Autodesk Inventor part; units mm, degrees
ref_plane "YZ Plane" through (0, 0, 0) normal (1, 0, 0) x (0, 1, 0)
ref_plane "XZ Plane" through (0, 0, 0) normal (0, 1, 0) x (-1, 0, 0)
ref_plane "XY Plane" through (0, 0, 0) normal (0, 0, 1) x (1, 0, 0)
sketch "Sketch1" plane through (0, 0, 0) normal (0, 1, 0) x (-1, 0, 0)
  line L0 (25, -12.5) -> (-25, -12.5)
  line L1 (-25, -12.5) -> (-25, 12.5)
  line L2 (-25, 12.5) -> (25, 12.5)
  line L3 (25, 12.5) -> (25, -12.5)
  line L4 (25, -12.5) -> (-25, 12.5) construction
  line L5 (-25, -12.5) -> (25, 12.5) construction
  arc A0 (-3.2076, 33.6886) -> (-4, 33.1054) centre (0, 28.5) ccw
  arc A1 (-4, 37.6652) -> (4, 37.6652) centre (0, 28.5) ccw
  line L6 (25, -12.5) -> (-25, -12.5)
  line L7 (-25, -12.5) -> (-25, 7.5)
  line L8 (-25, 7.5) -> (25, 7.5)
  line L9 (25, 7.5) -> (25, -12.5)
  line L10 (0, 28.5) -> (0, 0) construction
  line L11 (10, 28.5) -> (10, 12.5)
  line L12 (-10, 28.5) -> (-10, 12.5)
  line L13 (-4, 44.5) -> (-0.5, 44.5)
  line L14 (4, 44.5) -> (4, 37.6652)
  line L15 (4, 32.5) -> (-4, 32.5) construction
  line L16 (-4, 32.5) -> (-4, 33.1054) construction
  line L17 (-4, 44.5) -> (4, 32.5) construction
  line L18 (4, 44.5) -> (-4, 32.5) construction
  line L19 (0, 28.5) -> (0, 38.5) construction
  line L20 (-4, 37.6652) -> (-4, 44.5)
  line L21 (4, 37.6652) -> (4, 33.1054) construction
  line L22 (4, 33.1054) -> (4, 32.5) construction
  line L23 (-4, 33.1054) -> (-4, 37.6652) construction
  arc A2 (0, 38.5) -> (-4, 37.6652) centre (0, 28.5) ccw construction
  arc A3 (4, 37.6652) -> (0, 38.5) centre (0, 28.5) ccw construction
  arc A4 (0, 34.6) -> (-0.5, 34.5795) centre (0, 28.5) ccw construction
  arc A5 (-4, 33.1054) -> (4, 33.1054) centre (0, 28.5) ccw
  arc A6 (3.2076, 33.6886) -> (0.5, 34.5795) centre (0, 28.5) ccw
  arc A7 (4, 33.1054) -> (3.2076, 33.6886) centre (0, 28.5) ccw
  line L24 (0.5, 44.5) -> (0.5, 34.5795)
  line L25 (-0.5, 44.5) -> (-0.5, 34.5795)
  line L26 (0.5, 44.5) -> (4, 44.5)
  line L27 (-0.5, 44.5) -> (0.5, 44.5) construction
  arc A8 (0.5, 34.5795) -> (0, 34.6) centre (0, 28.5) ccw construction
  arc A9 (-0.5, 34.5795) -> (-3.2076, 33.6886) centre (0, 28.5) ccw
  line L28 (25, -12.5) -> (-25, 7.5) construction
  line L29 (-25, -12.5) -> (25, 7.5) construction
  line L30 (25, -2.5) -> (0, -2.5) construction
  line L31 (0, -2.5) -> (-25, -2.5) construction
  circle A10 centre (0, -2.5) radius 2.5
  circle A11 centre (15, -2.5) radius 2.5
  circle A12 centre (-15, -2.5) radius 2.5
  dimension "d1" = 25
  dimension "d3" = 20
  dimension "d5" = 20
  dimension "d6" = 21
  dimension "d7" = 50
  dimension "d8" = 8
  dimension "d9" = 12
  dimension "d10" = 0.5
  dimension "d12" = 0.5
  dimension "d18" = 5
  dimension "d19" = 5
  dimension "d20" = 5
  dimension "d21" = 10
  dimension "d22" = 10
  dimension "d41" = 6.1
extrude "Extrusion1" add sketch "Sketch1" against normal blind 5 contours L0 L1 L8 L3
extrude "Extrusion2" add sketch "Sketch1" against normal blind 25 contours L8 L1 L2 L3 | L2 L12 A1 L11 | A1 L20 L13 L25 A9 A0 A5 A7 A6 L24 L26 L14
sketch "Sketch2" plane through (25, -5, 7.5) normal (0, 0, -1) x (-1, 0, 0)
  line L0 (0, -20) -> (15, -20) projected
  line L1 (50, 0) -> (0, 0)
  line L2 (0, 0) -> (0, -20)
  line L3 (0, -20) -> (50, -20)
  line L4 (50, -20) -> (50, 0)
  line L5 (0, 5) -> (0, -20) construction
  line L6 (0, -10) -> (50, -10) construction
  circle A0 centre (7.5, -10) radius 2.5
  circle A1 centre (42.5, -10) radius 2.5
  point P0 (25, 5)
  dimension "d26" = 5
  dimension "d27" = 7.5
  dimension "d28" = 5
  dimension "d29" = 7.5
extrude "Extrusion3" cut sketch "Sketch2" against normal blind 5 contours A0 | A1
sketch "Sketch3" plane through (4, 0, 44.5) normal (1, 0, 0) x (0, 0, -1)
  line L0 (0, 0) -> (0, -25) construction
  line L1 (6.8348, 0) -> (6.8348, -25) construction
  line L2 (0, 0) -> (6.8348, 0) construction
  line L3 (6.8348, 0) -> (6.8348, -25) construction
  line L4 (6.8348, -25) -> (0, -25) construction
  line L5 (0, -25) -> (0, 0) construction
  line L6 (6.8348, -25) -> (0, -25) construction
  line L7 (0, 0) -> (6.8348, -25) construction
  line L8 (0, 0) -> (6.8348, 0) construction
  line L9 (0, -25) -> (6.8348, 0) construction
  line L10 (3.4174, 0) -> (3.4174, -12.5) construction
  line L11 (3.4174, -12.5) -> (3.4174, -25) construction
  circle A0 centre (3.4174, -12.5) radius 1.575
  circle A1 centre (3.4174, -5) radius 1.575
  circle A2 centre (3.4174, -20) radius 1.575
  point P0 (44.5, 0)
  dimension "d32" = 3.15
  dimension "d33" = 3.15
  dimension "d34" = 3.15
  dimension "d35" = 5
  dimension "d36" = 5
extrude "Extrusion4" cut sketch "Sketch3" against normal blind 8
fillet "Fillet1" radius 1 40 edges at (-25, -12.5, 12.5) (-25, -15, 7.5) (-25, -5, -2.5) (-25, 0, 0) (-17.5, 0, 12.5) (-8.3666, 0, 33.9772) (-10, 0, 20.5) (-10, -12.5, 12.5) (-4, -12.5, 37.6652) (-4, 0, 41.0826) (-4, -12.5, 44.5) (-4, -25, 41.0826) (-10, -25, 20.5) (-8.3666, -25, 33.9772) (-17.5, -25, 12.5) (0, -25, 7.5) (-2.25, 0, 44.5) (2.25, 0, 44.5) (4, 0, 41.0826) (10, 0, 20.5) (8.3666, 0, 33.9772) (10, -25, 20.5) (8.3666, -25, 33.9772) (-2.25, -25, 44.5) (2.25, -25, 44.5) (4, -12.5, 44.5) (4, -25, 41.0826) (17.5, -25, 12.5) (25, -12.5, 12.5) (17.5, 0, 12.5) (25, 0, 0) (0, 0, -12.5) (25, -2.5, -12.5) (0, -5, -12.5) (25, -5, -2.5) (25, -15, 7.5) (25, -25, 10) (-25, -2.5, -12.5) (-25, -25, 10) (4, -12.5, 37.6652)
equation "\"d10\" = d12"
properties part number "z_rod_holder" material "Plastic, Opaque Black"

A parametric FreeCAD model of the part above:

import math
import FreeCAD as App
import Part
import Sketcher

V = App.Vector
Q = App.Units.Quantity


def edges_at(feature, points):
    """Names of the edges that pass closest to the given points."""
    edges = feature.Shape.Edges
    near = lambda p: min(range(len(edges)), key=lambda i: edges[i].distToShape(Part.Vertex(*p))[0])
    return sorted({f"Edge{near(p) + 1}" for p in points})

doc = App.newDocument("Part")
body = doc.addObject("PartDesign::Body", "Body")

# Sketch on XZ plane
sketch1 = body.newObject("Sketcher::SketchObject", "Sketch")
sketch1.AttachmentSupport = (doc.getObject("XZ_Plane"), [""])
sketch1.MapMode = "FlatFace"
sketch1.addGeometry([
    Part.LineSegment(V(25, -12.5, 0), V(-25, -12.5, 0)),  # 0
    Part.LineSegment(V(-25, -12.5, 0), V(-25, 7.5, 0)),  # 1
    Part.LineSegment(V(-25, 7.5, 0), V(25, 7.5, 0)),  # 2
    Part.LineSegment(V(25, 7.5, 0), V(25, -12.5, 0)),  # 3
    Part.Circle(V(15, -2.5, 0), V(0, 0, 1), 2.5),  # 4
    Part.Circle(V(0, -2.5, 0), V(0, 0, 1), 2.5),  # 5
    Part.Circle(V(-15, -2.5, 0), V(0, 0, 1), 2.5),  # 6
], False)
sketch1.addConstraint([
    Sketcher.Constraint("Coincident", 0, 2, 1, 1),
    Sketcher.Constraint("Coincident", 1, 2, 2, 1),
    Sketcher.Constraint("Coincident", 2, 2, 3, 1),
    Sketcher.Constraint("Coincident", 3, 2, 0, 1),
    Sketcher.Constraint("Horizontal", 0),
    Sketcher.Constraint("Vertical", 1),
    Sketcher.Constraint("Horizontal", 2),
    Sketcher.Constraint("Vertical", 3),
    Sketcher.Constraint("Equal", 4, 5),
    Sketcher.Constraint("Equal", 5, 6),
    Sketcher.Constraint("Symmetric", 4, 3, 6, 3, -2),
    Sketcher.Constraint("PointOnObject", 5, 3, -2),
    Sketcher.Constraint("Horizontal", 4, 3, 5, 3),
    Sketcher.Constraint("Diameter", 4, Q("5 mm")),
    Sketcher.Constraint("DistanceX", 0, 2, 0, 1, Q("50 mm")),
    Sketcher.Constraint("DistanceY", 1, 1, 1, 2, Q("20 mm")),
    Sketcher.Constraint("DistanceX", 0, 2, -1, 1, Q("25 mm")),
    Sketcher.Constraint("DistanceX", 0, 2, 6, 3, Q("10 mm")),
    Sketcher.Constraint("DistanceY", 0, 2, 6, 3, Q("10 mm")),
    Sketcher.Constraint("DistanceY", 4, 3, -1, 1, Q("2.5 mm")),
])
pad1 = body.newObject("PartDesign::Pad", "Pad")
pad1.Profile = sketch1
pad1.Length = 5

# Sketch on XZ plane
sketch2 = body.newObject("Sketcher::SketchObject", "Sketch001")
sketch2.AttachmentSupport = (doc.getObject("XZ_Plane"), [""])
sketch2.MapMode = "FlatFace"
sketch2.addGeometry([
    Part.LineSegment(V(25, 7.5, 0), V(-25, 7.5, 0)),  # 0
    Part.LineSegment(V(-25, 7.5, 0), V(-25, 12.5, 0)),  # 1
    Part.LineSegment(V(-25, 12.5, 0), V(-10, 12.5, 0)),  # 2
    Part.LineSegment(V(-10, 12.5, 0), V(-10, 28.5, 0)),  # 3
    Part.ArcOfCircle(Part.Circle(V(0, 28.5, 0), V(0, 0, 1), 10.000045), math.radians(113.578067), math.radians(180)),  # 4
    Part.LineSegment(V(-4, 37.6652, 0), V(-4, 44.5, 0)),  # 5
    Part.LineSegment(V(-4, 44.5, 0), V(-0.5, 44.5, 0)),  # 6
    Part.LineSegment(V(-0.5, 44.5, 0), V(-0.5, 34.5795, 0)),  # 7
    Part.ArcOfCircle(Part.Circle(V(0, 28.5, 0), V(0, 0, 1), 6.100026), math.radians(94.70163), math.radians(121.724416)),  # 8
    Part.ArcOfCircle(Part.Circle(V(0.004399, 28.494501, 0), V(0, 0, 1), 6.107012), math.radians(121.732398), math.radians(130.973139)),  # 9
    Part.ArcOfCircle(Part.Circle(V(0, 28.5, 0), V(0, 0, 1), 6.099976), math.radians(130.975805), math.radians(409.024195)),  # 10
    Part.ArcOfCircle(Part.Circle(V(0.003933, 28.505822, 0), V(0, 0, 1), 6.093002), math.radians(49.016214), math.radians(58.27825)),  # 11
    Part.ArcOfCircle(Part.Circle(V(0, 28.5, 0), V(0, 0, 1), 6.099976), math.radians(58.275584), math.radians(85.29837)),  # 12
    Part.LineSegment(V(0.5, 34.5795, 0), V(0.5, 44.5, 0)),  # 13
    Part.LineSegment(V(0.5, 44.5, 0), V(4, 44.5, 0)),  # 14
    Part.LineSegment(V(4, 44.5, 0), V(4, 37.6652, 0)),  # 15
    Part.ArcOfCircle(Part.Circle(V(0, 28.5, 0), V(0, 0, 1), 10.000045), math.radians(0), math.radians(66.421933)),  # 16
    Part.LineSegment(V(10, 28.5, 0), V(10, 12.5, 0)),  # 17
    Part.LineSegment(V(10, 12.5, 0), V(25, 12.5, 0)),  # 18
    Part.LineSegment(V(25, 12.5, 0), V(25, 7.5, 0)),  # 19
], False)
sketch2.addConstraint([
    Sketcher.Constraint("Coincident", 0, 2, 1, 1),
    Sketcher.Constraint("Coincident", 1, 2, 2, 1),
    Sketcher.Constraint("Coincident", 2, 2, 3, 1),
    Sketcher.Constraint("Coincident", 3, 2, 4, 2),
    Sketcher.Constraint("Coincident", 4, 1, 5, 1),
    Sketcher.Constraint("Coincident", 5, 2, 6, 1),
    Sketcher.Constraint("Coincident", 6, 2, 7, 1),
    Sketcher.Constraint("Coincident", 7, 2, 8, 1),
    Sketcher.Constraint("Coincident", 8, 2, 9, 1),
    Sketcher.Constraint("Coincident", 9, 2, 10, 1),
    Sketcher.Constraint("Coincident", 10, 2, 11, 1),
    Sketcher.Constraint("Coincident", 11, 2, 12, 1),
    Sketcher.Constraint("Coincident", 12, 2, 13, 1),
    Sketcher.Constraint("Coincident", 13, 2, 14, 1),
    Sketcher.Constraint("Coincident", 14, 2, 15, 1),
    Sketcher.Constraint("Coincident", 15, 2, 16, 2),
    Sketcher.Constraint("Coincident", 16, 1, 17, 1),
    Sketcher.Constraint("Coincident", 17, 2, 18, 1),
    Sketcher.Constraint("Coincident", 18, 2, 19, 1),
    Sketcher.Constraint("Coincident", 19, 2, 0, 1),
    Sketcher.Constraint("Horizontal", 0),
    Sketcher.Constraint("Vertical", 1),
    Sketcher.Constraint("Horizontal", 2),
    Sketcher.Constraint("Vertical", 3),
    Sketcher.Constraint("Vertical", 5),
    Sketcher.Constraint("Horizontal", 6),
    Sketcher.Constraint("Vertical", 7),
    Sketcher.Constraint("Vertical", 13),
    Sketcher.Constraint("Horizontal", 14),
    Sketcher.Constraint("Vertical", 15),
    Sketcher.Constraint("Vertical", 17),
    Sketcher.Constraint("Horizontal", 18),
    Sketcher.Constraint("Vertical", 19),
    Sketcher.Constraint("Coincident", 8, 3, 4, 3),
    Sketcher.Constraint("Coincident", 10, 3, 4, 3),
    Sketcher.Constraint("Coincident", 12, 3, 4, 3),
    Sketcher.Constraint("Coincident", 16, 3, 4, 3),
    Sketcher.Constraint("PointOnObject", 4, 3, -2),
    Sketcher.Constraint("Radius", 4, Q("10 mm")),
    Sketcher.Constraint("Radius", 16, Q("10 mm")),
    Sketcher.Constraint("Radius", 8, Q("6.1 mm")),
    Sketcher.Constraint("Radius", 10, Q("6.1 mm")),
    Sketcher.Constraint("Radius", 12, Q("6.1 mm")),
    Sketcher.Constraint("DistanceX", 0, 2, 0, 1, Q("50 mm")),
    Sketcher.Constraint("DistanceY", 1, 1, 1, 2, Q("5 mm")),
    Sketcher.Constraint("DistanceY", 19, 2, 19, 1, Q("5 mm")),
    Sketcher.Constraint("DistanceX", 0, 2, -1, 1, Q("25 mm")),
    Sketcher.Constraint("DistanceY", 0, 2, 4, 3, Q("21 mm")),
    Sketcher.Constraint("DistanceX", 5, 2, 14, 2, Q("8 mm")),
    Sketcher.Constraint("DistanceX", 10, 2, 18, 2, Q("21 mm")),
    Sketcher.Constraint("DistanceY", 19, 2, 16, 1, Q("21 mm")),
    Sketcher.Constraint("DistanceX", 6, 2, -1, 1, Q("0.5 mm")),
    Sketcher.Constraint("DistanceX", -1, 1, 12, 2, Q("0.5 mm")),
    Sketcher.Constraint("DistanceY", 3, 1, 3, 2, Q("16 mm")),
    Sketcher.Constraint("DistanceX", 6, 1, 6, 2, Q("3.5 mm")),
    Sketcher.Constraint("DistanceX", 9, 2, -1, 1, Q("4 mm")),
    Sketcher.Constraint("Radius", 9, Q("6.107 mm")),
    Sketcher.Constraint("Radius", 11, Q("6.093 mm")),
    Sketcher.Constraint("DistanceY", 4, 3, 5, 2, Q("16 mm")),
    Sketcher.Constraint("DistanceY", -1, 1, 4, 3, Q("28.5 mm")),
    Sketcher.Constraint("DistanceY", -1, 1, 13, 2, Q("44.5 mm")),
    Sketcher.Constraint("DistanceY", 8, 2, 7, 2, Q("0.891 mm")),
    Sketcher.Constraint("DistanceY", 11, 2, 7, 2, Q("0.891 mm")),
])
pad2 = body.newObject("PartDesign::Pad", "Pad001")
pad2.Profile = sketch2
pad2.Length = 25

# Sketch on XY plane
sketch3 = body.newObject("Sketcher::SketchObject", "Sketch002")
sketch3.AttachmentSupport = (doc.getObject("XY_Plane"), [""])
sketch3.MapMode = "FlatFace"
sketch3.AttachmentOffset = App.Placement(V(0, 0, 7.5), App.Rotation())
sketch3.addGeometry([
    Part.Circle(V(17.5, -15, 0), V(0, 0, 1), 2.5),
    Part.Circle(V(-17.5, -15, 0), V(0, 0, 1), 2.5),
], False)
sketch3.addConstraint([
    Sketcher.Constraint("Equal", 0, 1),
    Sketcher.Constraint("Symmetric", 0, 3, 1, 3, -2),
    Sketcher.Constraint("Diameter", 0, Q("5 mm")),
    Sketcher.Constraint("DistanceY", 0, 3, -1, 1, Q("15 mm")),
    Sketcher.Constraint("DistanceX", 1, 3, 0, 3, Q("35 mm")),
])
pocket1 = body.newObject("PartDesign::Pocket", "Pocket")
pocket1.Profile = sketch3
pocket1.Length = 5
pocket1.Reversed = True

# Sketch on YZ plane
sketch4 = body.newObject("Sketcher::SketchObject", "Sketch003")
sketch4.AttachmentSupport = (doc.getObject("YZ_Plane"), [""])
sketch4.MapMode = "FlatFace"
sketch4.AttachmentOffset = App.Placement(V(0, 0, 4), App.Rotation())
sketch4.addGeometry([
    Part.Circle(V(-12.5, 41.0826, 0), V(0, 0, 1), 1.575),
    Part.Circle(V(-5, 41.0826, 0), V(0, 0, 1), 1.575),
    Part.Circle(V(-20, 41.0826, 0), V(0, 0, 1), 1.575),
], False)
sketch4.addConstraint([
    Sketcher.Constraint("Equal", 0, 1),
    Sketcher.Constraint("Equal", 1, 2),
    Sketcher.Constraint("Horizontal", 0, 3, 1, 3),
    Sketcher.Constraint("Horizontal", 1, 3, 2, 3),
    Sketcher.Constraint("Diameter", 0, Q("3.15 mm")),
    Sketcher.Constraint("DistanceX", 1, 3, -1, 1, Q("5 mm")),
    Sketcher.Constraint("DistanceX", 2, 3, -1, 1, Q("20 mm")),
    Sketcher.Constraint("DistanceX", 0, 3, -1, 1, Q("12.5 mm")),
    Sketcher.Constraint("DistanceY", -1, 1, 0, 3, Q("41.0826 mm")),
])
pocket2 = body.newObject("PartDesign::Pocket", "Pocket001")
pocket2.Profile = sketch4
pocket2.Length = 8
doc.recompute()

fillet = body.newObject("PartDesign::Fillet", "Fillet")
fillet.Base = (pocket2, edges_at(pocket2, [
    (-25, -12.5, 12.5),
    (-25, -15, 7.5),
    (-25, -5, -2.5),
    (-25, 0, 0),
    (-17.5, 0, 12.5),
    (-8.367, 0, 33.977),
    (-10, 0, 20.5),
    (-10, -12.5, 12.5),
    (-4, -12.5, 37.665),
    (-4, 0, 41.083),
    (-4, -12.5, 44.5),
    (-4, -25, 41.083),
    (-10, -25, 20.5),
    (-8.367, -25, 33.977),
    (-17.5, -25, 12.5),
    (0, -25, 7.5),
    (-2.25, 0, 44.5),
    (2.25, 0, 44.5),
    (4, 0, 41.083),
    (10, 0, 20.5),
    (8.367, 0, 33.977),
    (10, -25, 20.5),
    (8.367, -25, 33.977),
    (-2.25, -25, 44.5),
    (2.25, -25, 44.5),
    (4, -12.5, 44.5),
    (4, -25, 41.083),
    (17.5, -25, 12.5),
    (25, -12.5, 12.5),
    (17.5, 0, 12.5),
    (25, 0, 0),
    (0, 0, -12.5),
    (25, -2.5, -12.5),
    (0, -5, -12.5),
    (25, -5, -2.5),
    (25, -15, 7.5),
    (25, -25, 10),
    (-25, -2.5, -12.5),
    (-25, -25, 10),
    (4, -12.5, 37.665),
]))
fillet.Radius = 1

doc.recompute()
